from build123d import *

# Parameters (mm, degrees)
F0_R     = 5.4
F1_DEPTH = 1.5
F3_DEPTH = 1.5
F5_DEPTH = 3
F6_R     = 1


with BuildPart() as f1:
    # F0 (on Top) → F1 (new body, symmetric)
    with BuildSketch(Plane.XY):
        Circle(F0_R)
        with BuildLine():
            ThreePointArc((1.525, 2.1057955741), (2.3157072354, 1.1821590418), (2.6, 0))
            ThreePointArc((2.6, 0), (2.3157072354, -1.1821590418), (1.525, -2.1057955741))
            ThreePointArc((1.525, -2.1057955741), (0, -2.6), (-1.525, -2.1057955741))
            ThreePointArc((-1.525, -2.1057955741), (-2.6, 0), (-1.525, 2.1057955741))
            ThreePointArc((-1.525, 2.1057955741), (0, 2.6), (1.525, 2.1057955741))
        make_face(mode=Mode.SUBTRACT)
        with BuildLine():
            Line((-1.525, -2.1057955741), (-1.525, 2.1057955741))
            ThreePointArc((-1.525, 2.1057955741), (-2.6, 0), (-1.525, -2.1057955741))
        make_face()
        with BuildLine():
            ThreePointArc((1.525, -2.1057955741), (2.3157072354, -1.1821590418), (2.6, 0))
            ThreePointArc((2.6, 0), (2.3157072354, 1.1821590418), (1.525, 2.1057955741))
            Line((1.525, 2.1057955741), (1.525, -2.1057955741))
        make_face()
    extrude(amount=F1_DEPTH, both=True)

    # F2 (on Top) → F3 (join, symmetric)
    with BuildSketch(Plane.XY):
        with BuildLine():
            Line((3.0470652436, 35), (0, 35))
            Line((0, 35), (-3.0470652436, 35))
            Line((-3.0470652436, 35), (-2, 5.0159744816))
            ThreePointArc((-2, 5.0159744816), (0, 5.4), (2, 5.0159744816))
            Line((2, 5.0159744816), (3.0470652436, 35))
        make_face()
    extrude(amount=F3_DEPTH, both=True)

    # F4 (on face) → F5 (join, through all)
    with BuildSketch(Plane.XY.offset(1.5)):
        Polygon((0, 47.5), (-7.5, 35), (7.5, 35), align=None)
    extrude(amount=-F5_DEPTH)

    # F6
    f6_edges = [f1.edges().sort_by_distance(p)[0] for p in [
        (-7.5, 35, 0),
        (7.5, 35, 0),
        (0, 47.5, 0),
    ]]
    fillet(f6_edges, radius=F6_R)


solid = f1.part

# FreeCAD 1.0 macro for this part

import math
import FreeCAD as App
import Part
import Sketcher
Q = App.Units.Quantity


def edges_at(feature, points):
    """Names of the edges that pass closest to the given points."""
    edges = feature.Shape.Edges
    near = lambda p: min(range(len(edges)), key=lambda i: edges[i].distToShape(Part.Vertex(*p))[0])
    return sorted({f"Edge{near(p) + 1}" for p in points})

doc = App.newDocument("Part")
body = doc.addObject("PartDesign::Body", "Body")

sketch1 = doc.addObject("Sketcher::SketchObject", "Sketch")
body.addObject(sketch1)
sketch1.AttachmentSupport = (doc.XY_Plane, [""])
sketch1.MapMode = "FlatFace"
sketch1.addGeometry([
    Part.Circle(App.Vector(0, 0, 0), App.Vector(0, 0, 1), 5.4),
    Part.ArcOfCircle(Part.Circle(App.Vector(0, 0, 0), App.Vector(0, 0, 1), 2.6), math.radians(54), math.radians(126)),
    Part.LineSegment(App.Vector(1.5, 2.1, 0), App.Vector(1.5, -2.1, 0)),
    Part.ArcOfCircle(Part.Circle(App.Vector(0, 0, 0), App.Vector(0, 0, 1), 2.6), math.radians(-126), math.radians(-54)),
    Part.LineSegment(App.Vector(-1.5, -2.1, 0), App.Vector(-1.5, 2.1, 0)),
], False)
sketch1.addConstraint([
    Sketcher.Constraint("Coincident", 1, 1, 2, 1),
    Sketcher.Constraint("Coincident", 2, 2, 3, 2),
    Sketcher.Constraint("Coincident", 3, 1, 4, 1),
    Sketcher.Constraint("Coincident", 4, 2, 1, 2),
    Sketcher.Constraint("Vertical", 2),
    Sketcher.Constraint("Vertical", 4),
    Sketcher.Constraint("Coincident", 0, 3, -1, 1),
    Sketcher.Constraint("Coincident", 1, 3, -1, 1),
    Sketcher.Constraint("Coincident", 3, 3, -1, 1),
    Sketcher.Constraint("Equal", 1, 3),
    Sketcher.Constraint("Horizontal", 2, 2, 3, 1),
    Sketcher.Constraint("Diameter", 0, Q("10.8 mm")),
    Sketcher.Constraint("Radius", 1, Q("2.6 mm")),
    Sketcher.Constraint("DistanceX", 3, 1, 2, 2, Q("3.05 mm")),
])
pad1 = doc.addObject("PartDesign::Pad", "Pad")
body.addObject(pad1)
pad1.Profile = sketch1
pad1.Length = 3
pad1.Midplane = True

sketch2 = doc.addObject("Sketcher::SketchObject", "Sketch001")
body.addObject(sketch2)
sketch2.AttachmentSupport = (doc.XY_Plane, [""])
sketch2.MapMode = "FlatFace"
sketch2.addGeometry([
    Part.LineSegment(App.Vector(3, 35, 0), App.Vector(-3, 35, 0)),
    Part.LineSegment(App.Vector(-3, 35, 0), App.Vector(-2, 5, 0)),
    Part.ArcOfCircle(Part.Circle(App.Vector(0, 0, 0), App.Vector(0, 0, 1), 5.4), math.radians(68), math.radians(112)),
    Part.LineSegment(App.Vector(2, 5, 0), App.Vector(3, 35, 0)),
], False)
sketch2.addConstraint([
    Sketcher.Constraint("Coincident", 0, 2, 1, 1),
    Sketcher.Constraint("Coincident", 1, 2, 2, 2),
    Sketcher.Constraint("Coincident", 2, 1, 3, 1),
    Sketcher.Constraint("Coincident", 3, 2, 0, 1),
    Sketcher.Constraint("Horizontal", 0),
    Sketcher.Constraint("Coincident", 2, 3, -1, 1),
    Sketcher.Constraint("Horizontal", 1, 2, 2, 1),
    Sketcher.Constraint("Equal", 1, 3),
    Sketcher.Constraint("Radius", 2, Q("5.4 mm")),
    Sketcher.Constraint("Angle", 1, Q("-88 deg")),
    Sketcher.Constraint("DistanceY", -1, 1, 0, 2, Q("35 mm")),
    Sketcher.Constraint("DistanceX", 1, 2, -1, 1, Q("2 mm")),
])
pad2 = doc.addObject("PartDesign::Pad", "Pad001")
body.addObject(pad2)
pad2.Profile = sketch2
pad2.Length = 3
pad2.Midplane = True

sketch3 = doc.addObject("Sketcher::SketchObject", "Sketch002")
body.addObject(sketch3)
sketch3.AttachmentSupport = (doc.XY_Plane, [""])
sketch3.MapMode = "FlatFace"
sketch3.AttachmentOffset = App.Placement(App.Vector(0, 0, 1.5), App.Rotation())
sketch3.addGeometry([
    Part.LineSegment(App.Vector(0, 48, 0), App.Vector(-8, 35, 0)),
    Part.LineSegment(App.Vector(-8, 35, 0), App.Vector(8, 35, 0)),
    Part.LineSegment(App.Vector(8, 35, 0), App.Vector(0, 48, 0)),
], False)
sketch3.addConstraint([
    Sketcher.Constraint("Coincident", 0, 2, 1, 1),
    Sketcher.Constraint("Coincident", 1, 2, 2, 1),
    Sketcher.Constraint("Coincident", 2, 2, 0, 1),
    Sketcher.Constraint("Horizontal", 1),
    Sketcher.Constraint("PointOnObject", 2, 2, -2),
    Sketcher.Constraint("Equal", 0, 2),
    Sketcher.Constraint("DistanceX", 1, 1, 1, 2, Q("15 mm")),
    Sketcher.Constraint("DistanceY", -1, 1, 0, 2, Q("35 mm")),
    Sketcher.Constraint("DistanceY", -1, 1, 2, 2, Q("47.5 mm")),
])
pad3 = doc.addObject("PartDesign::Pad", "Pad002")
body.addObject(pad3)
pad3.Profile = sketch3
pad3.Length = 3
pad3.Reversed = True
doc.recompute()

fillet = doc.addObject("PartDesign::Fillet", "Fillet")
body.addObject(fillet)
fillet.Base = (pad3, edges_at(pad3, [(-7.5, 35, 0), (7.5, 35, 0), (0, 47.5, 0)]))
fillet.Radius = 1

doc.recompute()
